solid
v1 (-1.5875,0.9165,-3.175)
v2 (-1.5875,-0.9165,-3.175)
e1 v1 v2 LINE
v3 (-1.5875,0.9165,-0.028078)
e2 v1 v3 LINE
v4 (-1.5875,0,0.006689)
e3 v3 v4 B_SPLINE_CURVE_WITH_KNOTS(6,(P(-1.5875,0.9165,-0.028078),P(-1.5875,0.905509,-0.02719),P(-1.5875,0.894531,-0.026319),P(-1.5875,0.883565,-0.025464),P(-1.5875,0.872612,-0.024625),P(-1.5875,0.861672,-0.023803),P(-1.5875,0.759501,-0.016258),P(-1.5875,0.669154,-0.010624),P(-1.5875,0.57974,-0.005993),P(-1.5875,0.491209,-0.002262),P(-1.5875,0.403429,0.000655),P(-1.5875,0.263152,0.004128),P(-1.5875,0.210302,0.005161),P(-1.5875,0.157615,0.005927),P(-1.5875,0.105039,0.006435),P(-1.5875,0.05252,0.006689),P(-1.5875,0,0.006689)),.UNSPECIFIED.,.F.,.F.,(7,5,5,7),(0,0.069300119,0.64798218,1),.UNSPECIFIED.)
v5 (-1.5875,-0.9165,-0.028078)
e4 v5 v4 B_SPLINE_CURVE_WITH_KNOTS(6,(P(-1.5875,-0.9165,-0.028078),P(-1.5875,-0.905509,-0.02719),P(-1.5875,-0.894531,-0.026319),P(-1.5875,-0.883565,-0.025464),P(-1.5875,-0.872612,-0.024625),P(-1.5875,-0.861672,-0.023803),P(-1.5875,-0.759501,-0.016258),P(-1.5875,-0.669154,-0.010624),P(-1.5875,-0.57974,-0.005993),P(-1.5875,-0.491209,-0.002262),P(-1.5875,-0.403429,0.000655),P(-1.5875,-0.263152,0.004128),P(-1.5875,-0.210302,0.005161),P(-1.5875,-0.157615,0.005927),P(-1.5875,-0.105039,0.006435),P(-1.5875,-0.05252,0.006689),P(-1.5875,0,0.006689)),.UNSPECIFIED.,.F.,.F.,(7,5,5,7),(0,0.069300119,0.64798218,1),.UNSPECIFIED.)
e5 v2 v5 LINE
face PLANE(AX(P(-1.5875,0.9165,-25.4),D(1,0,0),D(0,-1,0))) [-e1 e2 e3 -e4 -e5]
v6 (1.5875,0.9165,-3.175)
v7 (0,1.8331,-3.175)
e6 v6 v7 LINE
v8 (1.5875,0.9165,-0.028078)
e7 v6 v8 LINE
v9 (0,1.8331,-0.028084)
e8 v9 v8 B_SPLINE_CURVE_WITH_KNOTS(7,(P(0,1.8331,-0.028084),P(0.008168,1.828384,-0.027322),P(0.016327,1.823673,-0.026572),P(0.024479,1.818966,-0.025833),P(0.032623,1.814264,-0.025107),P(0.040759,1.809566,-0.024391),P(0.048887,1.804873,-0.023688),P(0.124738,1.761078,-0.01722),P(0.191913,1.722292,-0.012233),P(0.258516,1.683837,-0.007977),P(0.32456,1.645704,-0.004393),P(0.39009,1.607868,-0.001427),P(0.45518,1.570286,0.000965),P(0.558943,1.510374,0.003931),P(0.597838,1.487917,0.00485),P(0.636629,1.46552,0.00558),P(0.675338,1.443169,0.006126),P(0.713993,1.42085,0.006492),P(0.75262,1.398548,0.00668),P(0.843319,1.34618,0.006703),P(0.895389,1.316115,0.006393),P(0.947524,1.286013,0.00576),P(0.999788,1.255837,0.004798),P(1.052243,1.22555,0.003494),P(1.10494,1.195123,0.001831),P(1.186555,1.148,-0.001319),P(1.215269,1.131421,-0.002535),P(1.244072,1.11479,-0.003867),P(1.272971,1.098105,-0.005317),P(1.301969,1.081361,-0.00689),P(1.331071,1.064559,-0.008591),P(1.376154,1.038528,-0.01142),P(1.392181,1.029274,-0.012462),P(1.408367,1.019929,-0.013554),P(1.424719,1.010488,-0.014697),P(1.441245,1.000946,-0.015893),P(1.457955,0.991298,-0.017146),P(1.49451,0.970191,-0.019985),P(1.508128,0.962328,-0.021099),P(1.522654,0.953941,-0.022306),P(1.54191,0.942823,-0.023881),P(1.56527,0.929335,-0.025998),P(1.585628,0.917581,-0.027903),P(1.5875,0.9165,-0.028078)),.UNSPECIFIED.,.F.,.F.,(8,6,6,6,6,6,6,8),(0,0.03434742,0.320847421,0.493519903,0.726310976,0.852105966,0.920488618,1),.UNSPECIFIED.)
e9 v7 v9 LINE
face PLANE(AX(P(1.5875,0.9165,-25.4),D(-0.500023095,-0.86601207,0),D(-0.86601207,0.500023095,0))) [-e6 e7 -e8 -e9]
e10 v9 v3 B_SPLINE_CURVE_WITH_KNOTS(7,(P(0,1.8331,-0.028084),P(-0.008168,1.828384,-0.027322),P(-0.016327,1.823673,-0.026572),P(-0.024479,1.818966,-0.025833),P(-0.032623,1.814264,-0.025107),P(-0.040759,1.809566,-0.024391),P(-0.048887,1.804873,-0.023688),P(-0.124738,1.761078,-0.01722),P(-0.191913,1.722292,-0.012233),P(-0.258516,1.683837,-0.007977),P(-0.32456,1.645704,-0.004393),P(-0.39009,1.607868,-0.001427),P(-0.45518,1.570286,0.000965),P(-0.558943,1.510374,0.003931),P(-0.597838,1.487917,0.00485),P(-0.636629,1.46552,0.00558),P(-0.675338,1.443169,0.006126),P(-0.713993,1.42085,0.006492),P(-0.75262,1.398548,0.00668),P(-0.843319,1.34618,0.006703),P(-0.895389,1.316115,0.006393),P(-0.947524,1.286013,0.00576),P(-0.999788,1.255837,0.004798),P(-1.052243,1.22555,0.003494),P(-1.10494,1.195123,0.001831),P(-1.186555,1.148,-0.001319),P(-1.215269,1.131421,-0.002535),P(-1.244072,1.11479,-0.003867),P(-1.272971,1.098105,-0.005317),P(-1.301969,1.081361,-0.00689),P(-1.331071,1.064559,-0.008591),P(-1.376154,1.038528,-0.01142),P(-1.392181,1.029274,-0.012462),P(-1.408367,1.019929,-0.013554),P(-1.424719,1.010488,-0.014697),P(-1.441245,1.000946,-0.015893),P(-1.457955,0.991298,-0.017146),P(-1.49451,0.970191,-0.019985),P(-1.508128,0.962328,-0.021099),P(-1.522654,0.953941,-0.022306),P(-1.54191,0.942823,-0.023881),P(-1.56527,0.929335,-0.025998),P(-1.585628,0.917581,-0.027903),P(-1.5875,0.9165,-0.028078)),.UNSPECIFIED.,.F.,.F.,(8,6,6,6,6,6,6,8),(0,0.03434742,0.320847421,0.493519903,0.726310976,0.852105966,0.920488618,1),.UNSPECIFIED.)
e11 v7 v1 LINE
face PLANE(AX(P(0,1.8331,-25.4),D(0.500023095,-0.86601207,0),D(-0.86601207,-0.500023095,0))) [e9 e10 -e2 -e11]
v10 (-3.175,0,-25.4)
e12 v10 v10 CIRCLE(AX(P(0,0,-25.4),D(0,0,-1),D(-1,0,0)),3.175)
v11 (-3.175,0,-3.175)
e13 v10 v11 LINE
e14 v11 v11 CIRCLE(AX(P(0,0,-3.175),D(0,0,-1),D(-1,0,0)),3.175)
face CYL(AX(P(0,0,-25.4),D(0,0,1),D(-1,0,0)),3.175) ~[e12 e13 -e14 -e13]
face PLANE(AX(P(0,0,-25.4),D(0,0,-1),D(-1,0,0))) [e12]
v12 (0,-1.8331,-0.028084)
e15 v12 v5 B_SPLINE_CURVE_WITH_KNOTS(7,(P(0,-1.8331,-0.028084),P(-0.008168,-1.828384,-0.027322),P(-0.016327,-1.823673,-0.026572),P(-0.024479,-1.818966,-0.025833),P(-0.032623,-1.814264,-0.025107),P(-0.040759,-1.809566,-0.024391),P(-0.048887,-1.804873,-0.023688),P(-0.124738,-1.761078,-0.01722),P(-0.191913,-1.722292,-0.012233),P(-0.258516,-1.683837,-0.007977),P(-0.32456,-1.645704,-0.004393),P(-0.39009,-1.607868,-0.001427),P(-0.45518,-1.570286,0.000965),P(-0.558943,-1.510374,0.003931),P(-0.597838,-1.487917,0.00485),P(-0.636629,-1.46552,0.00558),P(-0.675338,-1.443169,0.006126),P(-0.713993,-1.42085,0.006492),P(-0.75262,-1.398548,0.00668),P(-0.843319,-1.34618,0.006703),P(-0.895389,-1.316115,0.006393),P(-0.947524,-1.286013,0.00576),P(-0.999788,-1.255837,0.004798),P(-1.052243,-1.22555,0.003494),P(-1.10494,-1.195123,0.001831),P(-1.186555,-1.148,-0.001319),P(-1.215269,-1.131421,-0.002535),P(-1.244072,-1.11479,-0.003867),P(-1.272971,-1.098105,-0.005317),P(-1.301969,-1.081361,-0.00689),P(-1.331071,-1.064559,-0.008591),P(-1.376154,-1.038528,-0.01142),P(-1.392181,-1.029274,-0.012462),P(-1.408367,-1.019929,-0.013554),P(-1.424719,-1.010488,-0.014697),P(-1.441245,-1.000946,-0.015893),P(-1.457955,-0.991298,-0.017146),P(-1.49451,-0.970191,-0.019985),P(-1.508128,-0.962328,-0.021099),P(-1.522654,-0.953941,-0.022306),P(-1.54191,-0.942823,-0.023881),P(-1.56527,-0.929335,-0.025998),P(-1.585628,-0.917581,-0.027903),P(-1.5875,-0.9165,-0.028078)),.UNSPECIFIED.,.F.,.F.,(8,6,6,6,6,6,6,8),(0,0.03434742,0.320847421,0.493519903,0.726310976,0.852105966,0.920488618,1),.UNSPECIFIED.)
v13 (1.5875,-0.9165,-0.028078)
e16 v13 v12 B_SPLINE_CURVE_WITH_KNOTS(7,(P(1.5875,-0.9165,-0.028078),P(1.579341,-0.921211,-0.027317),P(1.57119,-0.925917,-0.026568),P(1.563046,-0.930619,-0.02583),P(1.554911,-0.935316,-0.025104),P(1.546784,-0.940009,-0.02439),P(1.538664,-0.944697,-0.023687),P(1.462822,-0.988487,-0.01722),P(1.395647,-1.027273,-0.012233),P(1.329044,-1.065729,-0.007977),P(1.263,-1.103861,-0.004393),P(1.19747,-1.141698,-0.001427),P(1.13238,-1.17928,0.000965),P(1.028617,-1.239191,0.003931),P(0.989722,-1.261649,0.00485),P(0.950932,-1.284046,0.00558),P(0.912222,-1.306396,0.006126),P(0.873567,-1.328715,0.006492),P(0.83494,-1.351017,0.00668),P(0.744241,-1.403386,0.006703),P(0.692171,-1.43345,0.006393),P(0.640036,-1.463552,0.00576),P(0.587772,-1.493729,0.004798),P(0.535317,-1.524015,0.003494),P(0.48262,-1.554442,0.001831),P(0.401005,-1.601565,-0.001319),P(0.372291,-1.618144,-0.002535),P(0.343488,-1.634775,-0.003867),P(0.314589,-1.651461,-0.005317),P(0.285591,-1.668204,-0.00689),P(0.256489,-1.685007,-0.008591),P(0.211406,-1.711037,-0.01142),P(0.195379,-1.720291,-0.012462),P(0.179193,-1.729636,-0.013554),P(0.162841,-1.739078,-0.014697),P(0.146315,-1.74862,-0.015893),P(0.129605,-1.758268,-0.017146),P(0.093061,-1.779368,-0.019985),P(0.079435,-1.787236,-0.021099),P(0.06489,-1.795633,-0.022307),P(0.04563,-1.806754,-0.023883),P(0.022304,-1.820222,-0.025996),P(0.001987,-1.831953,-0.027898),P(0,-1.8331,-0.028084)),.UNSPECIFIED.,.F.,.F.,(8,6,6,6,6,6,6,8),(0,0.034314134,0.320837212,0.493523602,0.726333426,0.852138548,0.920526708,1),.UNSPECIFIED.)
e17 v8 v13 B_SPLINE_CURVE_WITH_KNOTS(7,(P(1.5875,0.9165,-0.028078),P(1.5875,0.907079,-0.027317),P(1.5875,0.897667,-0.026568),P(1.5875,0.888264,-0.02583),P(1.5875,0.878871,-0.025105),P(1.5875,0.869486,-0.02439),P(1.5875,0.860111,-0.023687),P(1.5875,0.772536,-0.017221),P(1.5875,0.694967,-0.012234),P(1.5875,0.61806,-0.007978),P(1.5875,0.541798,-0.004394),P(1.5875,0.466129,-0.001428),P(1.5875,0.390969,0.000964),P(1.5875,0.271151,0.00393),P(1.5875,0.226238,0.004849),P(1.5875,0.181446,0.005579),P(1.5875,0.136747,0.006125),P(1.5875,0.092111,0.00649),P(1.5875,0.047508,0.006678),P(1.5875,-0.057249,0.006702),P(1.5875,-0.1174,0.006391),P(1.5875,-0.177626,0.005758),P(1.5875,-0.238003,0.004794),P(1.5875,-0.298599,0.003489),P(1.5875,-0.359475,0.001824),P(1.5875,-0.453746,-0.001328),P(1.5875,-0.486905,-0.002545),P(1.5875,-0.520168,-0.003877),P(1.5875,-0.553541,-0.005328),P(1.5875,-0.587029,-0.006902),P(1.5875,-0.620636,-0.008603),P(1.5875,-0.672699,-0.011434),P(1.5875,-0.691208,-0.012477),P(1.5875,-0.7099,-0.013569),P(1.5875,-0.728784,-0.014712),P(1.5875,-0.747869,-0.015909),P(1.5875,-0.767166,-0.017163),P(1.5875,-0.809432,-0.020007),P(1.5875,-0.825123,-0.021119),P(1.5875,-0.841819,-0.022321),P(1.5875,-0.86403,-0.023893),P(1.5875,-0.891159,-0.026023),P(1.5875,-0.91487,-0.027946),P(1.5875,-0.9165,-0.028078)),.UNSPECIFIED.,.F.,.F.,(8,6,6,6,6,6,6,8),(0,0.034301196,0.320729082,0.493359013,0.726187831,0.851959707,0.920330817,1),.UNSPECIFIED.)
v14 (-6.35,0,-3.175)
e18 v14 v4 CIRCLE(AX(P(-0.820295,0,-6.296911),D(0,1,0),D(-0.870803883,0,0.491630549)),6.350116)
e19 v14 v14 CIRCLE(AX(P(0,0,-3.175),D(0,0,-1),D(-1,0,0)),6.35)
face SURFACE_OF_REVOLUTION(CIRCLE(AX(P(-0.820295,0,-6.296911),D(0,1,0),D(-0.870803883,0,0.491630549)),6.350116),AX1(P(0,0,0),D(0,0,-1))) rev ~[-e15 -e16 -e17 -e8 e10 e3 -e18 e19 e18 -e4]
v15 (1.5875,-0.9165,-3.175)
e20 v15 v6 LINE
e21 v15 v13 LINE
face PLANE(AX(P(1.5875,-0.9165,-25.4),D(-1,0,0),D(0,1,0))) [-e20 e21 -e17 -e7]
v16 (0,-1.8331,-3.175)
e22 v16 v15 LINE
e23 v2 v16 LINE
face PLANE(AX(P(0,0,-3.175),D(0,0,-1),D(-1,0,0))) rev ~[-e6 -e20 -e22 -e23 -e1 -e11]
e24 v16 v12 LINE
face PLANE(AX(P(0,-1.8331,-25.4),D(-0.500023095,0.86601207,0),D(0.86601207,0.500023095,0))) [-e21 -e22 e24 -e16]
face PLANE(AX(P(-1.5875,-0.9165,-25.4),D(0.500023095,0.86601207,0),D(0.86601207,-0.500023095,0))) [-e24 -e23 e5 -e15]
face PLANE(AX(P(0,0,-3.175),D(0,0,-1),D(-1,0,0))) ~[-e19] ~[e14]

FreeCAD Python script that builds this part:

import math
import FreeCAD as App
import Part
import Sketcher
Q = App.Units.Quantity

doc = App.newDocument("Part")
body = doc.addObject("PartDesign::Body", "Body")

sketch1 = body.newObject("Sketcher::SketchObject", "Sketch")
sketch1.AttachmentSupport = (doc.getObject("XZ_Plane"), [""])
sketch1.MapMode = "FlatFace"
sketch1.addGeometry([
    Part.ArcOfCircle(Part.Circle(App.Vector(-0.8204, -6.2968, 0), App.Vector(0, 0, 1), 6.349969), math.radians(82.576839), math.radians(150.552594)),
    Part.LineSegment(App.Vector(0, 0, 0), App.Vector(0, -25.4, 0)),
    Part.LineSegment(App.Vector(0, -25.4, 0), App.Vector(-3.175, -25.4, 0)),
    Part.LineSegment(App.Vector(-3.175, -25.4, 0), App.Vector(-3.175, -3.175, 0)),
    Part.LineSegment(App.Vector(-3.175, -3.175, 0), App.Vector(-6.35, -3.175, 0)),
], False)
sketch1.addConstraint([
    Sketcher.Constraint("Coincident", 0, 1, 1, 1),
    Sketcher.Constraint("Coincident", 1, 2, 2, 1),
    Sketcher.Constraint("Coincident", 2, 2, 3, 1),
    Sketcher.Constraint("Coincident", 3, 2, 4, 1),
    Sketcher.Constraint("Coincident", 4, 2, 0, 2),
    Sketcher.Constraint("Vertical", 1),
    Sketcher.Constraint("Horizontal", 2),
    Sketcher.Constraint("Vertical", 3),
    Sketcher.Constraint("Horizontal", 4),
    Sketcher.Constraint("Coincident", 0, 1, -1, 1),
    Sketcher.Constraint("Equal", 2, 4),
    Sketcher.Constraint("DistanceY", 1, 2, 1, 1, Q("1 in")),
    Sketcher.Constraint("Radius", 0, Q("0.25 in")),
    Sketcher.Constraint("DistanceX", 2, 2, 2, 1, Q("0.125 in")),
    Sketcher.Constraint("DistanceY", 3, 1, 3, 2, Q("0.875 in")),
])
revolution = body.newObject("PartDesign::Revolution", "Revolution")
revolution.Profile = sketch1
revolution.ReferenceAxis = (sketch1, ["V_Axis"])
revolution.Angle = 360

sketch2 = body.newObject("Sketcher::SketchObject", "Sketch001")
sketch2.AttachmentSupport = (doc.getObject("XY_Plane"), [""])
sketch2.MapMode = "FlatFace"
sketch2.AttachmentOffset = App.Placement(App.Vector(0, 0, -1 * 25.4), App.Rotation())
sketch2.addGeometry([
    Part.LineSegment(App.Vector(0, 1.8331, 0), App.Vector(1.5875, 0.9165, 0)),
    Part.LineSegment(App.Vector(1.5875, 0.9165, 0), App.Vector(1.5875, -0.9165, 0)),
    Part.LineSegment(App.Vector(1.5875, -0.9165, 0), App.Vector(0, -1.8331, 0)),
    Part.LineSegment(App.Vector(0, -1.8331, 0), App.Vector(-1.5875, -0.9165, 0)),
    Part.LineSegment(App.Vector(-1.5875, -0.9165, 0), App.Vector(-1.5875, 0.9165, 0)),
    Part.LineSegment(App.Vector(-1.5875, 0.9165, 0), App.Vector(0, 1.8331, 0)),
], False)
sketch2.addConstraint([
    Sketcher.Constraint("Coincident", 0, 2, 1, 1),
    Sketcher.Constraint("Coincident", 1, 2, 2, 1),
    Sketcher.Constraint("Coincident", 2, 2, 3, 1),
    Sketcher.Constraint("Coincident", 3, 2, 4, 1),
    Sketcher.Constraint("Coincident", 4, 2, 5, 1),
    Sketcher.Constraint("Coincident", 5, 2, 0, 1),
    Sketcher.Constraint("Vertical", 1),
    Sketcher.Constraint("Vertical", 4),
    Sketcher.Constraint("Symmetric", 0, 2, 3, 2, -1, 1),
    Sketcher.Constraint("Symmetric", 2, 2, 5, 2, -1, 1),
    Sketcher.Constraint("PointOnObject", 2, 2, -2),
    Sketcher.Constraint("Parallel", 2, 5),
    Sketcher.Constraint("Horizontal", 1, 2, 3, 2),
    Sketcher.Constraint("DistanceX", 3, 2, 1, 2, Q("0.125 in")),
    Sketcher.Constraint("DistanceY", 1, 2, 1, 1, Q("1.833 mm")),
    Sketcher.Constraint("Distance", 0, Q("1.833 mm")),
])
pocket1 = body.newObject("PartDesign::Pocket", "Pocket")
pocket1.Profile = sketch2
pocket1.Length = Q("1.25 in")
pocket1.Reversed = True

sketch3 = body.newObject("Sketcher::SketchObject", "Sketch002")
sketch3.AttachmentSupport = (doc.getObject("XY_Plane"), [""])
sketch3.MapMode = "FlatFace"
sketch3.AttachmentOffset = App.Placement(App.Vector(0, 0, -1 * 25.4), App.Rotation())
sketch3.addGeometry([
    Part.LineSegment(App.Vector(0, 1.8331, 0), App.Vector(1.5875, 0.9165, 0)),
    Part.LineSegment(App.Vector(1.5875, 0.9165, 0), App.Vector(1.5875, -0.9165, 0)),
    Part.LineSegment(App.Vector(1.5875, -0.9165, 0), App.Vector(0, -1.8331, 0)),
    Part.LineSegment(App.Vector(0, -1.8331, 0), App.Vector(-1.5875, -0.9165, 0)),
    Part.LineSegment(App.Vector(-1.5875, -0.9165, 0), App.Vector(-1.5875, 0.9165, 0)),
    Part.LineSegment(App.Vector(-1.5875, 0.9165, 0), App.Vector(0, 1.8331, 0)),
], False)
sketch3.addConstraint([
    Sketcher.Constraint("Coincident", 0, 2, 1, 1),
    Sketcher.Constraint("Coincident", 1, 2, 2, 1),
    Sketcher.Constraint("Coincident", 2, 2, 3, 1),
    Sketcher.Constraint("Coincident", 3, 2, 4, 1),
    Sketcher.Constraint("Coincident", 4, 2, 5, 1),
    Sketcher.Constraint("Coincident", 5, 2, 0, 1),
    Sketcher.Constraint("Vertical", 1),
    Sketcher.Constraint("Vertical", 4),
    Sketcher.Constraint("Symmetric", 0, 2, 3, 2, -1, 1),
    Sketcher.Constraint("Symmetric", 2, 2, 5, 2, -1, 1),
    Sketcher.Constraint("PointOnObject", 2, 2, -2),
    Sketcher.Constraint("Parallel", 2, 5),
    Sketcher.Constraint("Horizontal", 1, 2, 3, 2),
    Sketcher.Constraint("DistanceX", -1, 1, 0, 2, Q("0.0625 in")),
    Sketcher.Constraint("DistanceY", 1, 2, 1, 1, Q("1.833 mm")),
    Sketcher.Constraint("Distance", 0, Q("1.833 mm")),
])
pad1 = body.newObject("PartDesign::Pad", "Pad")
pad1.Profile = sketch3
pad1.Length = Q("0.875 in")

doc.recompute()
